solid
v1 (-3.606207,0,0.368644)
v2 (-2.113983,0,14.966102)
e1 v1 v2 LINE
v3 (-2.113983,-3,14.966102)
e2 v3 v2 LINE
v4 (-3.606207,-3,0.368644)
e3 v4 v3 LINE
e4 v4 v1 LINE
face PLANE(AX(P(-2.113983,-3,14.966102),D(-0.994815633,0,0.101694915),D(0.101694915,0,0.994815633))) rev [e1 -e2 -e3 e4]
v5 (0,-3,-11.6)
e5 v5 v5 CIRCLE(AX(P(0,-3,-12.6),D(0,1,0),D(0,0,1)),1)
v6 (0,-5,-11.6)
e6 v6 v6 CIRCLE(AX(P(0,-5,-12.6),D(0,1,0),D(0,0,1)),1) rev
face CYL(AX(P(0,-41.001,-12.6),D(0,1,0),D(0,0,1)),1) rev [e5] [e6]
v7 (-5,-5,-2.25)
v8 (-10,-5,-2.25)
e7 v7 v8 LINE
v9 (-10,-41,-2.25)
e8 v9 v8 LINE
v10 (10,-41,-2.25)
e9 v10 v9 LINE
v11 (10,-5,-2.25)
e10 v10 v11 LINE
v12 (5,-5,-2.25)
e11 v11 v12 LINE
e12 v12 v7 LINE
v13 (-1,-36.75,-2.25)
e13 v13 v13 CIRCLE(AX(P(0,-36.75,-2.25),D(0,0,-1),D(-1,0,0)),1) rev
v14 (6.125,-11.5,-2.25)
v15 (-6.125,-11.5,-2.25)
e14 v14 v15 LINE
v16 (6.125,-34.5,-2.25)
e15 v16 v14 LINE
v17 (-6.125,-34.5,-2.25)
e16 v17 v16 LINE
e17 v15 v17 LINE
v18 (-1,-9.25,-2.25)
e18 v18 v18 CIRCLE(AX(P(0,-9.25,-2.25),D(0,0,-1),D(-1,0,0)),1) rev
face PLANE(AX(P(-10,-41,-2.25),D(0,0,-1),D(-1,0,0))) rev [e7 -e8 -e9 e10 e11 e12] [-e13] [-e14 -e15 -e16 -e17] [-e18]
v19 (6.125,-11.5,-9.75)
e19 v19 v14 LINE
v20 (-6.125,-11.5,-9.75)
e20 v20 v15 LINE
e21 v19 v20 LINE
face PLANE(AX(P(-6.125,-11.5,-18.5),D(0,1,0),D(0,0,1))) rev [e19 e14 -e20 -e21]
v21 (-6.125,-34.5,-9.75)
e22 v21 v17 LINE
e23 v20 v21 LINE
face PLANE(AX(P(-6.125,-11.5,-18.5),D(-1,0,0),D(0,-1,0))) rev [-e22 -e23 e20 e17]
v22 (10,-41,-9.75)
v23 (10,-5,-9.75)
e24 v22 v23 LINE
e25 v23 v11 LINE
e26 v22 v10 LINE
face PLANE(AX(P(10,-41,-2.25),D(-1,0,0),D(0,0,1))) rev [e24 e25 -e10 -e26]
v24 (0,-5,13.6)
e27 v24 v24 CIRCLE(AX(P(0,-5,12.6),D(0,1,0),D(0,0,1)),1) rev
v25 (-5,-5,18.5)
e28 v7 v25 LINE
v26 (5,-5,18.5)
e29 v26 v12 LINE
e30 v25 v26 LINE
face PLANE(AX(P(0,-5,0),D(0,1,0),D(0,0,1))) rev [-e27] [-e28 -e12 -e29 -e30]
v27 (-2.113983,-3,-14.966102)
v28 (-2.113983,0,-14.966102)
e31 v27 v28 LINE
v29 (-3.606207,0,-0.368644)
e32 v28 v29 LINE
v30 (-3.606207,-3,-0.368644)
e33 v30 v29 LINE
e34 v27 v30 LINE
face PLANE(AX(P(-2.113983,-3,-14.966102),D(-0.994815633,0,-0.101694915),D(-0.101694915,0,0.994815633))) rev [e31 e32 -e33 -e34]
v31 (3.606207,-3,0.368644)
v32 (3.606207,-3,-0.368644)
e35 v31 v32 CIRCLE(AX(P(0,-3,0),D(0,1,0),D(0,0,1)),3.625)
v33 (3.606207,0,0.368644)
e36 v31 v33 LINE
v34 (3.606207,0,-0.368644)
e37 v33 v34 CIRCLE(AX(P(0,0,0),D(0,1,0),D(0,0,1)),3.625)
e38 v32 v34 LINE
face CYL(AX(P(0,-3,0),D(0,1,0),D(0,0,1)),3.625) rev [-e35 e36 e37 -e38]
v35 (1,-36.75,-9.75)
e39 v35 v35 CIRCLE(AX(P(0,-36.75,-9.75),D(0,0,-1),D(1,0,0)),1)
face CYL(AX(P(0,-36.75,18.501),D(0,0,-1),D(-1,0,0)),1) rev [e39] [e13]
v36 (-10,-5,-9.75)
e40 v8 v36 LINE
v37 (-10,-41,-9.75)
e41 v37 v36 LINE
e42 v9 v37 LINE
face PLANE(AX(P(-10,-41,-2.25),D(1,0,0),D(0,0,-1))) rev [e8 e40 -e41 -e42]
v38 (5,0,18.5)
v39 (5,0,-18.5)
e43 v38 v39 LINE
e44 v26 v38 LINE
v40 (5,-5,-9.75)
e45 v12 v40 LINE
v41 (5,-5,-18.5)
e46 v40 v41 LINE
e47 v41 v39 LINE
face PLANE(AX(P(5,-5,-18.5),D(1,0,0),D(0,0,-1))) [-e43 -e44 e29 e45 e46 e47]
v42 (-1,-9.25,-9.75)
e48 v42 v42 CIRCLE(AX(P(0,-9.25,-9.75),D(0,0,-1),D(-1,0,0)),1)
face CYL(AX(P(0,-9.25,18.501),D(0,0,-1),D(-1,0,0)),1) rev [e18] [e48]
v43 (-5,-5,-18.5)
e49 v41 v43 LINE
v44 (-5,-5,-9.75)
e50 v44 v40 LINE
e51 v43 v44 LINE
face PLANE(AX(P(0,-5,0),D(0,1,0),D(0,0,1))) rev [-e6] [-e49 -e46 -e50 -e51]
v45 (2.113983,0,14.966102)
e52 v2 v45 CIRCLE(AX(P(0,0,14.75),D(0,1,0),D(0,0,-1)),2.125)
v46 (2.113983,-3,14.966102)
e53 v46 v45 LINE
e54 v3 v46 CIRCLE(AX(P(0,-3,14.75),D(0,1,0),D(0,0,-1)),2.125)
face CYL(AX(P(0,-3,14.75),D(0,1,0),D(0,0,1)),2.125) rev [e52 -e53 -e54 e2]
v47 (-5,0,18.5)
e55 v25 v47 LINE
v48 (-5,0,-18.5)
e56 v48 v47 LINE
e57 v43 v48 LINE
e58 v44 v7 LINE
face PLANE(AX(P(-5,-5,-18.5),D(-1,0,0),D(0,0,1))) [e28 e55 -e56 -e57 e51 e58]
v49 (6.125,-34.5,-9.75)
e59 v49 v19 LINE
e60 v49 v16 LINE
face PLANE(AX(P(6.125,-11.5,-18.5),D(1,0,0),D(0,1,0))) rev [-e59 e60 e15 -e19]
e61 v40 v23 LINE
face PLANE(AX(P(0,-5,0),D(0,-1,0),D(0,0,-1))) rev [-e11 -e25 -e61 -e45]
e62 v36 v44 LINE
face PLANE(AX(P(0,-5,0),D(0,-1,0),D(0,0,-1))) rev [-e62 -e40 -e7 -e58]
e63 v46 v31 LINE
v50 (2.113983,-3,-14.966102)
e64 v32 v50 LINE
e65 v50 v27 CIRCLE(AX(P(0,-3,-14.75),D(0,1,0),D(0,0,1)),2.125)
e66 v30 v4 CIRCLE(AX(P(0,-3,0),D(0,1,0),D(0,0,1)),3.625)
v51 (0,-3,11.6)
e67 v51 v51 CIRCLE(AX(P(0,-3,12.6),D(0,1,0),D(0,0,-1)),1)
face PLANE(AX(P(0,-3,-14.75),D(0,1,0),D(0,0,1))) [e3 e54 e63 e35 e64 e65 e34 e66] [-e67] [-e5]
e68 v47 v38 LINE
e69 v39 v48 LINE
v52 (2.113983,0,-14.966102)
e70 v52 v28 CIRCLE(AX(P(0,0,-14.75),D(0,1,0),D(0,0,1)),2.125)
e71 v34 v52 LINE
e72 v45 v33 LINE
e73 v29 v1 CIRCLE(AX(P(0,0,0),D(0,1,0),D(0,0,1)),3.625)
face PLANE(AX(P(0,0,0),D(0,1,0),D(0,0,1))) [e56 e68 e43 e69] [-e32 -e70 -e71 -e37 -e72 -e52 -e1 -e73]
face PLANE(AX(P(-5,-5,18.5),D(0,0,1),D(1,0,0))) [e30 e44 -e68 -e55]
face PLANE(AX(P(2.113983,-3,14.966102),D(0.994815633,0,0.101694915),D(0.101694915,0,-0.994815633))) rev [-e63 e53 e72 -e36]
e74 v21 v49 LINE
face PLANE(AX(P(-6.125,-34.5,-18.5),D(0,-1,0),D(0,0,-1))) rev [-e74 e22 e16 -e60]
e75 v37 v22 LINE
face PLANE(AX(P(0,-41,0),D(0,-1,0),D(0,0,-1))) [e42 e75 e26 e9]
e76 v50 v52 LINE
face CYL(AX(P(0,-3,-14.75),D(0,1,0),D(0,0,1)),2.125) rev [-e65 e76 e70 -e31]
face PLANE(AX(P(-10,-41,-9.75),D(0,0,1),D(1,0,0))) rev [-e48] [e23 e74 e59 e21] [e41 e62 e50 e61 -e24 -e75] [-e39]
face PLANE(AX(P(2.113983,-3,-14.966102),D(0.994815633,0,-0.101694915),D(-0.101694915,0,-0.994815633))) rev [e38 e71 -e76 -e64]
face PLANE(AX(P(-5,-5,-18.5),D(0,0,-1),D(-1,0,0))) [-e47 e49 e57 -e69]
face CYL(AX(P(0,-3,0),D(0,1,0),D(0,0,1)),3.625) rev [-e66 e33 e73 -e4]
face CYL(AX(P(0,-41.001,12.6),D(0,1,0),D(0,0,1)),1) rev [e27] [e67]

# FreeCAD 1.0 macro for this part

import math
import FreeCAD as App
import Part
import Sketcher

V = App.Vector


def add_polygon(sketch, points):
    """Adds a closed chain of lines whose ends are joined by coincident constraints."""
    first, n = sketch.GeometryCount, len(points)
    for a, b in zip(points, points[1:] + points[:1]):
        sketch.addGeometry(Part.LineSegment(App.Vector(*a, 0), App.Vector(*b, 0)), False)
    for i in range(n):
        sketch.addConstraint(Sketcher.Constraint("Coincident", first + i, 2, first + (i + 1) % n, 1))

doc = App.newDocument("Part")
params = doc.addObject("Spreadsheet::Sheet", "Params")
for row, (alias, value) in enumerate([
    ("sketch1_width", "10 mm"),
    ("sketch1_height", "37 mm"),
    ("pad1_length", "5 mm"),
    ("pocket1_length", "3 mm"),
    ("sketch3_width", "20 mm"),
    ("sketch3_height", "7.5 mm"),
    ("pad2_length", "36 mm"),
    ("sketch4_height", "23 mm"),
    ("sketch4_width", "12.25 mm"),
    ("sketch5_diameter", "2 mm"),
    ("sketch6_diameter", "2 mm"),
    ("sketch7_diameter", "2 mm"),
    ("sketch8_diameter", "2 mm"),
], start=1):
    params.set(f"A{row}", alias)
    params.set(f"B{row}", "=" + value)
    params.setAlias(f"B{row}", alias)

body = doc.addObject("PartDesign::Body", "Body")

# Sketch on XZ plane
sketch1 = body.newObject("Sketcher::SketchObject", "Sketch")
sketch1.AttachmentSupport = (doc.getObject("XZ_Plane"), [""])
sketch1.MapMode = "FlatFace"
add_polygon(sketch1, [(-5, -18), (-5, 18), (5, 18), (5, -18)])  # lines 0-3
sketch1.addConstraint([
    Sketcher.Constraint("Vertical", 0),
    Sketcher.Constraint("Horizontal", 1),
    Sketcher.Constraint("Vertical", 2),
    Sketcher.Constraint("Horizontal", 3),
    Sketcher.Constraint("Symmetric", 0, 2, 2, 2, -1, 1),
    Sketcher.Constraint("DistanceX", 1, 1, 1, 2, 10.0),
    Sketcher.Constraint("DistanceY", 0, 1, 0, 2, 37.0),
])
sketch1.setExpression("Constraints[9]", "Params.sketch1_width")
sketch1.setExpression("Constraints[10]", "Params.sketch1_height")
pad1 = body.newObject("PartDesign::Pad", "Pad")
pad1.Profile = sketch1
pad1.setExpression("Length", "Params.pad1_length")

# Sketch on XZ plane
sketch2 = body.newObject("Sketcher::SketchObject", "Sketch001")
sketch2.AttachmentSupport = (doc.getObject("XZ_Plane"), [""])
sketch2.MapMode = "FlatFace"
sketch2.addGeometry([
    Part.LineSegment(V(-2.1, -15, 0), V(-3.6, -0.4, 0)),  # 0
    Part.ArcOfCircle(Part.Circle(V(0, 0, 0), V(0, 0, 1), 3.6), math.radians(174.16), math.radians(185.84)),  # 1
    Part.LineSegment(V(-3.6, 0.4, 0), V(-2.1, 15, 0)),  # 2
    Part.ArcOfCircle(Part.Circle(V(0, 14.8, 0), V(0, 0, 1), 2.1), math.radians(6), math.radians(174)),  # 3
    Part.LineSegment(V(2.1, 15, 0), V(3.6, 0.4, 0)),  # 4
    Part.ArcOfCircle(Part.Circle(V(0, 0, 0), V(0, 0, 1), 3.6), math.radians(-5.84), math.radians(5.84)),  # 5
    Part.LineSegment(V(3.6, -0.4, 0), V(2.1, -15, 0)),  # 6
    Part.ArcOfCircle(Part.Circle(V(0, -14.8, 0), V(0, 0, 1), 2.1), math.radians(-174), math.radians(-6)),  # 7
], False)
sketch2.addConstraint([
    Sketcher.Constraint("Tangent", 0, 2, 1, 2),
    Sketcher.Constraint("Tangent", 1, 1, 2, 1),
    Sketcher.Constraint("Tangent", 2, 2, 3, 2),
    Sketcher.Constraint("Tangent", 3, 1, 4, 1),
    Sketcher.Constraint("Tangent", 4, 2, 5, 2),
    Sketcher.Constraint("Tangent", 5, 1, 6, 1),
    Sketcher.Constraint("Tangent", 6, 2, 7, 2),
    Sketcher.Constraint("Tangent", 7, 1, 0, 1),
    Sketcher.Constraint("Coincident", 1, 3, -1, 1),
    Sketcher.Constraint("Coincident", 5, 3, -1, 1),
    Sketcher.Constraint("Equal", 1, 5),
    Sketcher.Constraint("Equal", 3, 7),
    Sketcher.Constraint("Symmetric", 3, 3, 7, 3, -1, 1),
    Sketcher.Constraint("PointOnObject", 3, 3, -2),
    Sketcher.Constraint("Radius", 1, 3.625),
    Sketcher.Constraint("Radius", 3, 2.125),
    Sketcher.Constraint("DistanceY", 7, 3, 3, 3, 29.5),
])
pocket1 = body.newObject("PartDesign::Pocket", "Pocket")
pocket1.Profile = sketch2
pocket1.setExpression("Length", "Params.pocket1_length")
pocket1.Reversed = True

# Sketch on XZ plane
sketch3 = body.newObject("Sketcher::SketchObject", "Sketch002")
sketch3.AttachmentSupport = (doc.getObject("XZ_Plane"), [""])
sketch3.MapMode = "FlatFace"
sketch3.AttachmentOffset = App.Placement(V(0, 0, 5), App.Rotation())
add_polygon(sketch3, [(-10, -2), (-10, -10), (10, -10), (10, -2)])  # lines 0-3
sketch3.addConstraint([
    Sketcher.Constraint("Vertical", 0),
    Sketcher.Constraint("Horizontal", 1),
    Sketcher.Constraint("Vertical", 2),
    Sketcher.Constraint("Horizontal", 3),
    Sketcher.Constraint("DistanceX", 1, 1, 1, 2, 20.0),
    Sketcher.Constraint("DistanceY", 0, 2, 0, 1, 7.5),
    Sketcher.Constraint("DistanceX", 0, 2, -1, 1, 10.0),
    Sketcher.Constraint("DistanceY", 0, 2, -1, 1, 9.75),
])
sketch3.setExpression("Constraints[8]", "Params.sketch3_width")
sketch3.setExpression("Constraints[9]", "Params.sketch3_height")
pad2 = body.newObject("PartDesign::Pad", "Pad001")
pad2.Profile = sketch3
pad2.setExpression("Length", "Params.pad2_length")

# Sketch on XY plane
sketch4 = body.newObject("Sketcher::SketchObject", "Sketch003")
sketch4.AttachmentSupport = (doc.getObject("XY_Plane"), [""])
sketch4.MapMode = "FlatFace"
sketch4.AttachmentOffset = App.Placement(V(0, 0, -2.25), App.Rotation())
add_polygon(sketch4, [(-6, -12), (-6, -34), (6, -34), (6, -12)])  # lines 0-3
sketch4.addConstraint([
    Sketcher.Constraint("Vertical", 0),
    Sketcher.Constraint("Horizontal", 1),
    Sketcher.Constraint("Vertical", 2),
    Sketcher.Constraint("Horizontal", 3),
    Sketcher.Constraint("DistanceY", 0, 2, 0, 1, 23.0),
    Sketcher.Constraint("DistanceX", 1, 1, 1, 2, 12.25),
    Sketcher.Constraint("DistanceY", 0, 2, -1, 1, 34.5),
    Sketcher.Constraint("DistanceX", 0, 2, -1, 1, 6.125),
])
sketch4.setExpression("Constraints[8]", "Params.sketch4_height")
sketch4.setExpression("Constraints[9]", "Params.sketch4_width")
pocket2 = body.newObject("PartDesign::Pocket", "Pocket001")
pocket2.Profile = sketch4
pocket2.Type = "ThroughAll"

# Sketch on XZ plane
sketch5 = body.newObject("Sketcher::SketchObject", "Sketch004")
sketch5.AttachmentSupport = (doc.getObject("XZ_Plane"), [""])
sketch5.MapMode = "FlatFace"
sketch5.AttachmentOffset = App.Placement(V(0, 0, 3), App.Rotation())
sketch5.addGeometry(Part.Circle(V(0, -12.6, 0), V(0, 0, 1), 1), False)
sketch5.addConstraint([
    Sketcher.Constraint("PointOnObject", 0, 3, -2),
    Sketcher.Constraint("Diameter", 0, 2.0),
    Sketcher.Constraint("DistanceY", 0, 3, -1, 1, 12.6),
])
sketch5.setExpression("Constraints[1]", "Params.sketch5_diameter")
pocket3 = body.newObject("PartDesign::Pocket", "Pocket002")
pocket3.Profile = sketch5
pocket3.Type = "UpToFirst"
pocket3.Reversed = True

# Sketch on XZ plane
sketch6 = body.newObject("Sketcher::SketchObject", "Sketch005")
sketch6.AttachmentSupport = (doc.getObject("XZ_Plane"), [""])
sketch6.MapMode = "FlatFace"
sketch6.AttachmentOffset = App.Placement(V(0, 0, 3), App.Rotation())
sketch6.addGeometry(Part.Circle(V(0, 12.6, 0), V(0, 0, 1), 1), False)
sketch6.addConstraint([
    Sketcher.Constraint("PointOnObject", 0, 3, -2),
    Sketcher.Constraint("Diameter", 0, 2.0),
    Sketcher.Constraint("DistanceY", -1, 1, 0, 3, 12.6),
])
sketch6.setExpression("Constraints[1]", "Params.sketch6_diameter")
pocket4 = body.newObject("PartDesign::Pocket", "Pocket003")
pocket4.Profile = sketch6
pocket4.Type = "UpToFirst"
pocket4.Reversed = True

# Sketch on XY plane
sketch7 = body.newObject("Sketcher::SketchObject", "Sketch006")
sketch7.AttachmentSupport = (doc.getObject("XY_Plane"), [""])
sketch7.MapMode = "FlatFace"
sketch7.AttachmentOffset = App.Placement(V(0, 0, -9.75), App.Rotation())
sketch7.addGeometry(Part.Circle(V(0, -9.2, 0), V(0, 0, 1), 1), False)
sketch7.addConstraint([
    Sketcher.Constraint("PointOnObject", 0, 3, -2),
    Sketcher.Constraint("Diameter", 0, 2.0),
    Sketcher.Constraint("DistanceY", 0, 3, -1, 1, 9.25),
])
sketch7.setExpression("Constraints[1]", "Params.sketch7_diameter")
pocket5 = body.newObject("PartDesign::Pocket", "Pocket004")
pocket5.Profile = sketch7
pocket5.Type = "UpToFirst"
pocket5.Reversed = True

# Sketch on XY plane
sketch8 = body.newObject("Sketcher::SketchObject", "Sketch007")
sketch8.AttachmentSupport = (doc.getObject("XY_Plane"), [""])
sketch8.MapMode = "FlatFace"
sketch8.AttachmentOffset = App.Placement(V(0, 0, -9.75), App.Rotation())
sketch8.addGeometry(Part.Circle(V(0, -36.8, 0), V(0, 0, 1), 1), False)
sketch8.addConstraint([
    Sketcher.Constraint("PointOnObject", 0, 3, -2),
    Sketcher.Constraint("Diameter", 0, 2.0),
    Sketcher.Constraint("DistanceY", 0, 3, -1, 1, 36.75),
])
sketch8.setExpression("Constraints[1]", "Params.sketch8_diameter")
pocket6 = body.newObject("PartDesign::Pocket", "Pocket005")
pocket6.Profile = sketch8
pocket6.Type = "UpToFirst"
pocket6.Reversed = True

doc.recompute()
